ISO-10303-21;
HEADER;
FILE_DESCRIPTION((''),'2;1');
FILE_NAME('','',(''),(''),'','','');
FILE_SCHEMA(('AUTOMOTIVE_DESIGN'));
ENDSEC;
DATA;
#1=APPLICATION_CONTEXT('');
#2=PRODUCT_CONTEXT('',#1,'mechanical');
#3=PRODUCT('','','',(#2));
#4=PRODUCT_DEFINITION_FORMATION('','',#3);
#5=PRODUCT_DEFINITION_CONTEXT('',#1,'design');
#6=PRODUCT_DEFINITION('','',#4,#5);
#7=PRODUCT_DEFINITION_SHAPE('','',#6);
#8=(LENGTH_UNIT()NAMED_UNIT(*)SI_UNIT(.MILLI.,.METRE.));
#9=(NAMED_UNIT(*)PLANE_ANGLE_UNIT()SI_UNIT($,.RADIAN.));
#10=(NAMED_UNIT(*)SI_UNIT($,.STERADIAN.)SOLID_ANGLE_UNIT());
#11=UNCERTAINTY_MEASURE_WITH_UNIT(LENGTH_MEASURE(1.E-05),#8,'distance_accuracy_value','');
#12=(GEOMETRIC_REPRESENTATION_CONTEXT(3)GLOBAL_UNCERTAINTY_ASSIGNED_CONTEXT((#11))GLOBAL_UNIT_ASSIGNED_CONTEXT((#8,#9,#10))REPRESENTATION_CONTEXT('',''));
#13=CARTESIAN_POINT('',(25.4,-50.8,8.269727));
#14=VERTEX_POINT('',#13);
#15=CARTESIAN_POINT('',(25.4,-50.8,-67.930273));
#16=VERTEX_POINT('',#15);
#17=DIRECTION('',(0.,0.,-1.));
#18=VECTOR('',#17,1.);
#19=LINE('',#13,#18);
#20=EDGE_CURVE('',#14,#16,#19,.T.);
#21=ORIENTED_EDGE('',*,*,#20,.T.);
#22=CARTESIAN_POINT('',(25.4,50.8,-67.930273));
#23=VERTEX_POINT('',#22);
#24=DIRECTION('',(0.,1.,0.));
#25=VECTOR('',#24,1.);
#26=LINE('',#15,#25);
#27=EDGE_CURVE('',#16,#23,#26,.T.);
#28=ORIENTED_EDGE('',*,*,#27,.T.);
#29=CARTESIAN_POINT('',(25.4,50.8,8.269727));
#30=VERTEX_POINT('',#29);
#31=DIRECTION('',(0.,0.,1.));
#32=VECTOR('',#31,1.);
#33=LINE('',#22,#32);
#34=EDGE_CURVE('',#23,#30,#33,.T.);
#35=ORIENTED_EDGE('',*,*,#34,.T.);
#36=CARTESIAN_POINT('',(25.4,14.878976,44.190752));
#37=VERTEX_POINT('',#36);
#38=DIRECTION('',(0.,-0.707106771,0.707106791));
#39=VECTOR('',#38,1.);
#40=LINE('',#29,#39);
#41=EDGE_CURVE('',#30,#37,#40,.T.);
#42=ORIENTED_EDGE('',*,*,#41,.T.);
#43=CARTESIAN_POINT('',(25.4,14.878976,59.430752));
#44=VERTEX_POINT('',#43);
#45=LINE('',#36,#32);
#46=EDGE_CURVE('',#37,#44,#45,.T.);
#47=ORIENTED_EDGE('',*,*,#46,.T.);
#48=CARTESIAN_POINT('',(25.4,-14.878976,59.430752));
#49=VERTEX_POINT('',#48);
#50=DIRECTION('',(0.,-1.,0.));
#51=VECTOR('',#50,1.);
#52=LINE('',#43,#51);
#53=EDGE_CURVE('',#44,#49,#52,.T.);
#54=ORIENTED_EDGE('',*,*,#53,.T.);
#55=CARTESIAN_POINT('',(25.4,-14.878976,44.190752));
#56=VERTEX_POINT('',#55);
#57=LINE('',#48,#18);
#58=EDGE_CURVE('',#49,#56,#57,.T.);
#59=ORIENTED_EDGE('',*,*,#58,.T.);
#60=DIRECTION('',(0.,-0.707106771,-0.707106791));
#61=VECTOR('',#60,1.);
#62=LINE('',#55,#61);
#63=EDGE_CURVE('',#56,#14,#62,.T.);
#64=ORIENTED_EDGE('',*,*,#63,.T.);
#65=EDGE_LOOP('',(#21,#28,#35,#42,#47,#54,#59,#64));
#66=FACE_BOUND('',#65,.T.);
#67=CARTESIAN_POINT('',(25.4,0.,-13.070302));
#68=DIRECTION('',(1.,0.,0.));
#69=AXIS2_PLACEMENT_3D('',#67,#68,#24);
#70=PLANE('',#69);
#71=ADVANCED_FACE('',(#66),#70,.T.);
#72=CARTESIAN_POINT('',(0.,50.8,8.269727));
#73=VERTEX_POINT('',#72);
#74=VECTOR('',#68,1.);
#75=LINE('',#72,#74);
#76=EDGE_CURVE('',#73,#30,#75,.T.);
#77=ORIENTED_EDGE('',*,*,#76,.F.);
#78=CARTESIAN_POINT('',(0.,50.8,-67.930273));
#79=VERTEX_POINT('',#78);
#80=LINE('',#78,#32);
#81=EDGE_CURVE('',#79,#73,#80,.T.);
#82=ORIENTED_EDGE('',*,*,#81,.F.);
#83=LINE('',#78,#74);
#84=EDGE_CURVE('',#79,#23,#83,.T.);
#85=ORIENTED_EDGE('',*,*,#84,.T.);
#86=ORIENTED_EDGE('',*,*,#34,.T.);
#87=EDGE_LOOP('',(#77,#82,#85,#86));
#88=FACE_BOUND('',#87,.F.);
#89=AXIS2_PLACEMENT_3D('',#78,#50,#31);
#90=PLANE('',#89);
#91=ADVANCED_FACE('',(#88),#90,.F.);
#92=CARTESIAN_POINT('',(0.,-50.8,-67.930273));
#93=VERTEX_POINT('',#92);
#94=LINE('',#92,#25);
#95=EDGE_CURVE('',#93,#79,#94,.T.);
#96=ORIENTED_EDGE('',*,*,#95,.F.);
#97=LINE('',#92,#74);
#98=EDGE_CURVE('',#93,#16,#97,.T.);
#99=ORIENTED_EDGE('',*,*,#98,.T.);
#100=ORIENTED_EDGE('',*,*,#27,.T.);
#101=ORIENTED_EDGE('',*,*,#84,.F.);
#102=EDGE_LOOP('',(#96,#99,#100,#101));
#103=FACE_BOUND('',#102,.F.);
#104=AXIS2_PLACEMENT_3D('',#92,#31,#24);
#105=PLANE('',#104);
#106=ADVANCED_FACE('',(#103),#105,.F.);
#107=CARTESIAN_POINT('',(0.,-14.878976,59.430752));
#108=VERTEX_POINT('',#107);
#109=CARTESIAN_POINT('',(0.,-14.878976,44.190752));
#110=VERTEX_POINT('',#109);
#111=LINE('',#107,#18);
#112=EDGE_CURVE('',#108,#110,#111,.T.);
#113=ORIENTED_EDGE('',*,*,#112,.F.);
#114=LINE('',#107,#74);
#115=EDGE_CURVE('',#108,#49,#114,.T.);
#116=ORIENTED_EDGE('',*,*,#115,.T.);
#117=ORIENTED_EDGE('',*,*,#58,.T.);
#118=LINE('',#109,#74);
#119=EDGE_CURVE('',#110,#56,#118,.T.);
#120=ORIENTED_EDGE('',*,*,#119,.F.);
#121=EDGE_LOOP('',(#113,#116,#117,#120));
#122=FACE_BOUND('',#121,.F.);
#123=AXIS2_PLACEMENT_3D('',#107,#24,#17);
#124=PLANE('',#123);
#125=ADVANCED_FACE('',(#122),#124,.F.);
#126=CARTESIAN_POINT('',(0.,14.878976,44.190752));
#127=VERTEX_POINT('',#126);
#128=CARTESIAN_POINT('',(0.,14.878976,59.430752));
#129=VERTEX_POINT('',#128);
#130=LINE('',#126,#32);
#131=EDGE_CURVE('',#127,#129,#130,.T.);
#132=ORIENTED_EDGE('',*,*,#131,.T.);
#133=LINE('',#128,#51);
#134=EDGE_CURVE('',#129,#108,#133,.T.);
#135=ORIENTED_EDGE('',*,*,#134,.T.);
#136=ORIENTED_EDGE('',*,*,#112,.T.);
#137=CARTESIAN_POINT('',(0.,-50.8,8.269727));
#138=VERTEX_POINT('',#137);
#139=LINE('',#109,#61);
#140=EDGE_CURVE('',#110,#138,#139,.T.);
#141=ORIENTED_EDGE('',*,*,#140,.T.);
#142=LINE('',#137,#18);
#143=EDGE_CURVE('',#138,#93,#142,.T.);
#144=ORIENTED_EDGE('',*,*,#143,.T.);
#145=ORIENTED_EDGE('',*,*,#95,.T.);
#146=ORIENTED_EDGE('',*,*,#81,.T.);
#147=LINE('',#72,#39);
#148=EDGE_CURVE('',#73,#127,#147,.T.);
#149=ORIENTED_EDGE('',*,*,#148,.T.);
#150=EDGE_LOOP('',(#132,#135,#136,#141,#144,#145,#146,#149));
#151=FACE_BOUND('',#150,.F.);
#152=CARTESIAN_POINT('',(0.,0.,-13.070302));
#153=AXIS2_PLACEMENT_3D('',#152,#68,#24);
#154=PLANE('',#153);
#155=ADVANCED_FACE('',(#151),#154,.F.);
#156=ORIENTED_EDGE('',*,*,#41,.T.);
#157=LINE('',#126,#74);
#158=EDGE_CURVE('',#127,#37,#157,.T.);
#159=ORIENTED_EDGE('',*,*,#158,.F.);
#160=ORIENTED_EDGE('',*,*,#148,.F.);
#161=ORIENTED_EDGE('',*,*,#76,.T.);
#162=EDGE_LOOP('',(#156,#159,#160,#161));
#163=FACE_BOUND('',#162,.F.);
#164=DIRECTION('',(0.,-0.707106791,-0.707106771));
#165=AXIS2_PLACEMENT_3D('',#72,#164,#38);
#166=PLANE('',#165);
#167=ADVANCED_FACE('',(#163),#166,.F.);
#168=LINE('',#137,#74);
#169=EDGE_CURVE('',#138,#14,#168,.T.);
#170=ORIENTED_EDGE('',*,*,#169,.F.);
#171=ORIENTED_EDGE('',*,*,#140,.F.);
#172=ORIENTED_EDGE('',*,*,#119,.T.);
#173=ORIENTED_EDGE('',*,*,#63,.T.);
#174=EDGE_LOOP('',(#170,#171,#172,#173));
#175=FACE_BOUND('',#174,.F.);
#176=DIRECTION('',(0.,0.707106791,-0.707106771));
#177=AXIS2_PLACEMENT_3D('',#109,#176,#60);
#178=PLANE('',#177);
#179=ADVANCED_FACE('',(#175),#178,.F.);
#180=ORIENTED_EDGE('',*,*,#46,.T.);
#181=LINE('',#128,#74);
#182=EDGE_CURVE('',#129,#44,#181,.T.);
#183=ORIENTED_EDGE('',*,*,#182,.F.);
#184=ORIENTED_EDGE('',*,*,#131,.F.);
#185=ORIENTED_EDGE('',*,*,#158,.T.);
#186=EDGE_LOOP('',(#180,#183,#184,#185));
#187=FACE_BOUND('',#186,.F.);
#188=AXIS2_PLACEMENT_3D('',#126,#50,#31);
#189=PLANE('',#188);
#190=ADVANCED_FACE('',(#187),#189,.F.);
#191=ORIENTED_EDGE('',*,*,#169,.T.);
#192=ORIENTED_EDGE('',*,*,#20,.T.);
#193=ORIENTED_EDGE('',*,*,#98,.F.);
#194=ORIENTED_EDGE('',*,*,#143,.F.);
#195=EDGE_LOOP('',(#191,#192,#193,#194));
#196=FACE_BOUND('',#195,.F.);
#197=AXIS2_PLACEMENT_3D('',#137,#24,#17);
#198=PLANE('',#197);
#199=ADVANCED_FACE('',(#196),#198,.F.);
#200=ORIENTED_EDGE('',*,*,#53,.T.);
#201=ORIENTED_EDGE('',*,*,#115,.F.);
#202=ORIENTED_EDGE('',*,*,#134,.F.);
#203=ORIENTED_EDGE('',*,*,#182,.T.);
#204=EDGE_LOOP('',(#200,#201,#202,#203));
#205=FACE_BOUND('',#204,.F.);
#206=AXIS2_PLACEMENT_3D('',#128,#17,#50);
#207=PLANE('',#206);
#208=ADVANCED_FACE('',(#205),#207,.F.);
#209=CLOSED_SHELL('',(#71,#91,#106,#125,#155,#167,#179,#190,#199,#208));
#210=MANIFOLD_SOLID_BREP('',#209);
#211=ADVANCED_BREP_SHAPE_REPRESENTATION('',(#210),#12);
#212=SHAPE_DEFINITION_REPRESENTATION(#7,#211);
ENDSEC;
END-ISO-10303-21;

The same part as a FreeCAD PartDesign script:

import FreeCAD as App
import Part
import Sketcher
from FreeCAD import Vector
Q = App.Units.Quantity


def add_polygon(sketch, points):
    """Adds a closed chain of lines whose ends are joined by coincident constraints."""
    first, n = sketch.GeometryCount, len(points)
    for a, b in zip(points, points[1:] + points[:1]):
        sketch.addGeometry(Part.LineSegment(App.Vector(*a, 0), App.Vector(*b, 0)), False)
    for i in range(n):
        sketch.addConstraint(Sketcher.Constraint("Coincident", first + i, 2, first + (i + 1) % n, 1))

doc = App.newDocument("Part")
params = doc.addObject("Spreadsheet::Sheet", "Params")
for row, (alias, value) in enumerate([
    ("sketch1_width", "4 in"),
    ("sketch1_height", "3 in"),
    ("sketch1_length", "2 in"),
    ("sketch1_height2", "0.6 in"),
    ("pad1_length", "1 in"),
], start=1):
    params.set(f"A{row}", alias)
    params.set(f"B{row}", "=" + value)
    params.setAlias(f"B{row}", alias)

body = doc.addObject("PartDesign::Body", "Body")

sketch1 = body.newObject("Sketcher::SketchObject", "Sketch")
sketch1.AttachmentSupport = (doc.getObject("YZ_Plane"), [""])
sketch1.MapMode = "FlatFace"
add_polygon(sketch1, [(-51, 8), (-51, -68), (51, -68), (51, 8), (15, 44), (15, 59), (-15, 59), (-15, 44)])
sketch1.addConstraint(Sketcher.Constraint("Vertical", 0))
sketch1.addConstraint(Sketcher.Constraint("Horizontal", 1))
sketch1.addConstraint(Sketcher.Constraint("Vertical", 2))
sketch1.addConstraint(Sketcher.Constraint("Vertical", 4))
sketch1.addConstraint(Sketcher.Constraint("Horizontal", 5))
sketch1.addConstraint(Sketcher.Constraint("Vertical", 6))
sketch1.addConstraint(Sketcher.Constraint("Symmetric", 3, 2, 6, 2, -2))
sketch1.addConstraint(Sketcher.Constraint("Symmetric", 2, 2, 7, 2, -2))
sketch1.addConstraint(Sketcher.Constraint("Perpendicular", 3, 7))
sketch1.addConstraint(Sketcher.Constraint("DistanceX", 1, 1, 1, 2, Q("4 in")))
sketch1.addConstraint(Sketcher.Constraint("DistanceY", 0, 2, 0, 1, Q("3 in")))
sketch1.addConstraint(Sketcher.Constraint("Distance", 3, Q("2 in")))
sketch1.addConstraint(Sketcher.Constraint("DistanceY", 4, 1, 4, 2, Q("0.6 in")))
sketch1.addConstraint(Sketcher.Constraint("DistanceY", -1, 1, 4, 2, Q("59.430752 mm")))
sketch1.setExpression("Constraints[17]", "Params.sketch1_width")
sketch1.setExpression("Constraints[18]", "Params.sketch1_height")
sketch1.setExpression("Constraints[19]", "Params.sketch1_length")
sketch1.setExpression("Constraints[20]", "Params.sketch1_height2")
pad1 = body.newObject("PartDesign::Pad", "Pad")
pad1.Profile = sketch1
pad1.setExpression("Length", "Params.pad1_length")

doc.recompute()
